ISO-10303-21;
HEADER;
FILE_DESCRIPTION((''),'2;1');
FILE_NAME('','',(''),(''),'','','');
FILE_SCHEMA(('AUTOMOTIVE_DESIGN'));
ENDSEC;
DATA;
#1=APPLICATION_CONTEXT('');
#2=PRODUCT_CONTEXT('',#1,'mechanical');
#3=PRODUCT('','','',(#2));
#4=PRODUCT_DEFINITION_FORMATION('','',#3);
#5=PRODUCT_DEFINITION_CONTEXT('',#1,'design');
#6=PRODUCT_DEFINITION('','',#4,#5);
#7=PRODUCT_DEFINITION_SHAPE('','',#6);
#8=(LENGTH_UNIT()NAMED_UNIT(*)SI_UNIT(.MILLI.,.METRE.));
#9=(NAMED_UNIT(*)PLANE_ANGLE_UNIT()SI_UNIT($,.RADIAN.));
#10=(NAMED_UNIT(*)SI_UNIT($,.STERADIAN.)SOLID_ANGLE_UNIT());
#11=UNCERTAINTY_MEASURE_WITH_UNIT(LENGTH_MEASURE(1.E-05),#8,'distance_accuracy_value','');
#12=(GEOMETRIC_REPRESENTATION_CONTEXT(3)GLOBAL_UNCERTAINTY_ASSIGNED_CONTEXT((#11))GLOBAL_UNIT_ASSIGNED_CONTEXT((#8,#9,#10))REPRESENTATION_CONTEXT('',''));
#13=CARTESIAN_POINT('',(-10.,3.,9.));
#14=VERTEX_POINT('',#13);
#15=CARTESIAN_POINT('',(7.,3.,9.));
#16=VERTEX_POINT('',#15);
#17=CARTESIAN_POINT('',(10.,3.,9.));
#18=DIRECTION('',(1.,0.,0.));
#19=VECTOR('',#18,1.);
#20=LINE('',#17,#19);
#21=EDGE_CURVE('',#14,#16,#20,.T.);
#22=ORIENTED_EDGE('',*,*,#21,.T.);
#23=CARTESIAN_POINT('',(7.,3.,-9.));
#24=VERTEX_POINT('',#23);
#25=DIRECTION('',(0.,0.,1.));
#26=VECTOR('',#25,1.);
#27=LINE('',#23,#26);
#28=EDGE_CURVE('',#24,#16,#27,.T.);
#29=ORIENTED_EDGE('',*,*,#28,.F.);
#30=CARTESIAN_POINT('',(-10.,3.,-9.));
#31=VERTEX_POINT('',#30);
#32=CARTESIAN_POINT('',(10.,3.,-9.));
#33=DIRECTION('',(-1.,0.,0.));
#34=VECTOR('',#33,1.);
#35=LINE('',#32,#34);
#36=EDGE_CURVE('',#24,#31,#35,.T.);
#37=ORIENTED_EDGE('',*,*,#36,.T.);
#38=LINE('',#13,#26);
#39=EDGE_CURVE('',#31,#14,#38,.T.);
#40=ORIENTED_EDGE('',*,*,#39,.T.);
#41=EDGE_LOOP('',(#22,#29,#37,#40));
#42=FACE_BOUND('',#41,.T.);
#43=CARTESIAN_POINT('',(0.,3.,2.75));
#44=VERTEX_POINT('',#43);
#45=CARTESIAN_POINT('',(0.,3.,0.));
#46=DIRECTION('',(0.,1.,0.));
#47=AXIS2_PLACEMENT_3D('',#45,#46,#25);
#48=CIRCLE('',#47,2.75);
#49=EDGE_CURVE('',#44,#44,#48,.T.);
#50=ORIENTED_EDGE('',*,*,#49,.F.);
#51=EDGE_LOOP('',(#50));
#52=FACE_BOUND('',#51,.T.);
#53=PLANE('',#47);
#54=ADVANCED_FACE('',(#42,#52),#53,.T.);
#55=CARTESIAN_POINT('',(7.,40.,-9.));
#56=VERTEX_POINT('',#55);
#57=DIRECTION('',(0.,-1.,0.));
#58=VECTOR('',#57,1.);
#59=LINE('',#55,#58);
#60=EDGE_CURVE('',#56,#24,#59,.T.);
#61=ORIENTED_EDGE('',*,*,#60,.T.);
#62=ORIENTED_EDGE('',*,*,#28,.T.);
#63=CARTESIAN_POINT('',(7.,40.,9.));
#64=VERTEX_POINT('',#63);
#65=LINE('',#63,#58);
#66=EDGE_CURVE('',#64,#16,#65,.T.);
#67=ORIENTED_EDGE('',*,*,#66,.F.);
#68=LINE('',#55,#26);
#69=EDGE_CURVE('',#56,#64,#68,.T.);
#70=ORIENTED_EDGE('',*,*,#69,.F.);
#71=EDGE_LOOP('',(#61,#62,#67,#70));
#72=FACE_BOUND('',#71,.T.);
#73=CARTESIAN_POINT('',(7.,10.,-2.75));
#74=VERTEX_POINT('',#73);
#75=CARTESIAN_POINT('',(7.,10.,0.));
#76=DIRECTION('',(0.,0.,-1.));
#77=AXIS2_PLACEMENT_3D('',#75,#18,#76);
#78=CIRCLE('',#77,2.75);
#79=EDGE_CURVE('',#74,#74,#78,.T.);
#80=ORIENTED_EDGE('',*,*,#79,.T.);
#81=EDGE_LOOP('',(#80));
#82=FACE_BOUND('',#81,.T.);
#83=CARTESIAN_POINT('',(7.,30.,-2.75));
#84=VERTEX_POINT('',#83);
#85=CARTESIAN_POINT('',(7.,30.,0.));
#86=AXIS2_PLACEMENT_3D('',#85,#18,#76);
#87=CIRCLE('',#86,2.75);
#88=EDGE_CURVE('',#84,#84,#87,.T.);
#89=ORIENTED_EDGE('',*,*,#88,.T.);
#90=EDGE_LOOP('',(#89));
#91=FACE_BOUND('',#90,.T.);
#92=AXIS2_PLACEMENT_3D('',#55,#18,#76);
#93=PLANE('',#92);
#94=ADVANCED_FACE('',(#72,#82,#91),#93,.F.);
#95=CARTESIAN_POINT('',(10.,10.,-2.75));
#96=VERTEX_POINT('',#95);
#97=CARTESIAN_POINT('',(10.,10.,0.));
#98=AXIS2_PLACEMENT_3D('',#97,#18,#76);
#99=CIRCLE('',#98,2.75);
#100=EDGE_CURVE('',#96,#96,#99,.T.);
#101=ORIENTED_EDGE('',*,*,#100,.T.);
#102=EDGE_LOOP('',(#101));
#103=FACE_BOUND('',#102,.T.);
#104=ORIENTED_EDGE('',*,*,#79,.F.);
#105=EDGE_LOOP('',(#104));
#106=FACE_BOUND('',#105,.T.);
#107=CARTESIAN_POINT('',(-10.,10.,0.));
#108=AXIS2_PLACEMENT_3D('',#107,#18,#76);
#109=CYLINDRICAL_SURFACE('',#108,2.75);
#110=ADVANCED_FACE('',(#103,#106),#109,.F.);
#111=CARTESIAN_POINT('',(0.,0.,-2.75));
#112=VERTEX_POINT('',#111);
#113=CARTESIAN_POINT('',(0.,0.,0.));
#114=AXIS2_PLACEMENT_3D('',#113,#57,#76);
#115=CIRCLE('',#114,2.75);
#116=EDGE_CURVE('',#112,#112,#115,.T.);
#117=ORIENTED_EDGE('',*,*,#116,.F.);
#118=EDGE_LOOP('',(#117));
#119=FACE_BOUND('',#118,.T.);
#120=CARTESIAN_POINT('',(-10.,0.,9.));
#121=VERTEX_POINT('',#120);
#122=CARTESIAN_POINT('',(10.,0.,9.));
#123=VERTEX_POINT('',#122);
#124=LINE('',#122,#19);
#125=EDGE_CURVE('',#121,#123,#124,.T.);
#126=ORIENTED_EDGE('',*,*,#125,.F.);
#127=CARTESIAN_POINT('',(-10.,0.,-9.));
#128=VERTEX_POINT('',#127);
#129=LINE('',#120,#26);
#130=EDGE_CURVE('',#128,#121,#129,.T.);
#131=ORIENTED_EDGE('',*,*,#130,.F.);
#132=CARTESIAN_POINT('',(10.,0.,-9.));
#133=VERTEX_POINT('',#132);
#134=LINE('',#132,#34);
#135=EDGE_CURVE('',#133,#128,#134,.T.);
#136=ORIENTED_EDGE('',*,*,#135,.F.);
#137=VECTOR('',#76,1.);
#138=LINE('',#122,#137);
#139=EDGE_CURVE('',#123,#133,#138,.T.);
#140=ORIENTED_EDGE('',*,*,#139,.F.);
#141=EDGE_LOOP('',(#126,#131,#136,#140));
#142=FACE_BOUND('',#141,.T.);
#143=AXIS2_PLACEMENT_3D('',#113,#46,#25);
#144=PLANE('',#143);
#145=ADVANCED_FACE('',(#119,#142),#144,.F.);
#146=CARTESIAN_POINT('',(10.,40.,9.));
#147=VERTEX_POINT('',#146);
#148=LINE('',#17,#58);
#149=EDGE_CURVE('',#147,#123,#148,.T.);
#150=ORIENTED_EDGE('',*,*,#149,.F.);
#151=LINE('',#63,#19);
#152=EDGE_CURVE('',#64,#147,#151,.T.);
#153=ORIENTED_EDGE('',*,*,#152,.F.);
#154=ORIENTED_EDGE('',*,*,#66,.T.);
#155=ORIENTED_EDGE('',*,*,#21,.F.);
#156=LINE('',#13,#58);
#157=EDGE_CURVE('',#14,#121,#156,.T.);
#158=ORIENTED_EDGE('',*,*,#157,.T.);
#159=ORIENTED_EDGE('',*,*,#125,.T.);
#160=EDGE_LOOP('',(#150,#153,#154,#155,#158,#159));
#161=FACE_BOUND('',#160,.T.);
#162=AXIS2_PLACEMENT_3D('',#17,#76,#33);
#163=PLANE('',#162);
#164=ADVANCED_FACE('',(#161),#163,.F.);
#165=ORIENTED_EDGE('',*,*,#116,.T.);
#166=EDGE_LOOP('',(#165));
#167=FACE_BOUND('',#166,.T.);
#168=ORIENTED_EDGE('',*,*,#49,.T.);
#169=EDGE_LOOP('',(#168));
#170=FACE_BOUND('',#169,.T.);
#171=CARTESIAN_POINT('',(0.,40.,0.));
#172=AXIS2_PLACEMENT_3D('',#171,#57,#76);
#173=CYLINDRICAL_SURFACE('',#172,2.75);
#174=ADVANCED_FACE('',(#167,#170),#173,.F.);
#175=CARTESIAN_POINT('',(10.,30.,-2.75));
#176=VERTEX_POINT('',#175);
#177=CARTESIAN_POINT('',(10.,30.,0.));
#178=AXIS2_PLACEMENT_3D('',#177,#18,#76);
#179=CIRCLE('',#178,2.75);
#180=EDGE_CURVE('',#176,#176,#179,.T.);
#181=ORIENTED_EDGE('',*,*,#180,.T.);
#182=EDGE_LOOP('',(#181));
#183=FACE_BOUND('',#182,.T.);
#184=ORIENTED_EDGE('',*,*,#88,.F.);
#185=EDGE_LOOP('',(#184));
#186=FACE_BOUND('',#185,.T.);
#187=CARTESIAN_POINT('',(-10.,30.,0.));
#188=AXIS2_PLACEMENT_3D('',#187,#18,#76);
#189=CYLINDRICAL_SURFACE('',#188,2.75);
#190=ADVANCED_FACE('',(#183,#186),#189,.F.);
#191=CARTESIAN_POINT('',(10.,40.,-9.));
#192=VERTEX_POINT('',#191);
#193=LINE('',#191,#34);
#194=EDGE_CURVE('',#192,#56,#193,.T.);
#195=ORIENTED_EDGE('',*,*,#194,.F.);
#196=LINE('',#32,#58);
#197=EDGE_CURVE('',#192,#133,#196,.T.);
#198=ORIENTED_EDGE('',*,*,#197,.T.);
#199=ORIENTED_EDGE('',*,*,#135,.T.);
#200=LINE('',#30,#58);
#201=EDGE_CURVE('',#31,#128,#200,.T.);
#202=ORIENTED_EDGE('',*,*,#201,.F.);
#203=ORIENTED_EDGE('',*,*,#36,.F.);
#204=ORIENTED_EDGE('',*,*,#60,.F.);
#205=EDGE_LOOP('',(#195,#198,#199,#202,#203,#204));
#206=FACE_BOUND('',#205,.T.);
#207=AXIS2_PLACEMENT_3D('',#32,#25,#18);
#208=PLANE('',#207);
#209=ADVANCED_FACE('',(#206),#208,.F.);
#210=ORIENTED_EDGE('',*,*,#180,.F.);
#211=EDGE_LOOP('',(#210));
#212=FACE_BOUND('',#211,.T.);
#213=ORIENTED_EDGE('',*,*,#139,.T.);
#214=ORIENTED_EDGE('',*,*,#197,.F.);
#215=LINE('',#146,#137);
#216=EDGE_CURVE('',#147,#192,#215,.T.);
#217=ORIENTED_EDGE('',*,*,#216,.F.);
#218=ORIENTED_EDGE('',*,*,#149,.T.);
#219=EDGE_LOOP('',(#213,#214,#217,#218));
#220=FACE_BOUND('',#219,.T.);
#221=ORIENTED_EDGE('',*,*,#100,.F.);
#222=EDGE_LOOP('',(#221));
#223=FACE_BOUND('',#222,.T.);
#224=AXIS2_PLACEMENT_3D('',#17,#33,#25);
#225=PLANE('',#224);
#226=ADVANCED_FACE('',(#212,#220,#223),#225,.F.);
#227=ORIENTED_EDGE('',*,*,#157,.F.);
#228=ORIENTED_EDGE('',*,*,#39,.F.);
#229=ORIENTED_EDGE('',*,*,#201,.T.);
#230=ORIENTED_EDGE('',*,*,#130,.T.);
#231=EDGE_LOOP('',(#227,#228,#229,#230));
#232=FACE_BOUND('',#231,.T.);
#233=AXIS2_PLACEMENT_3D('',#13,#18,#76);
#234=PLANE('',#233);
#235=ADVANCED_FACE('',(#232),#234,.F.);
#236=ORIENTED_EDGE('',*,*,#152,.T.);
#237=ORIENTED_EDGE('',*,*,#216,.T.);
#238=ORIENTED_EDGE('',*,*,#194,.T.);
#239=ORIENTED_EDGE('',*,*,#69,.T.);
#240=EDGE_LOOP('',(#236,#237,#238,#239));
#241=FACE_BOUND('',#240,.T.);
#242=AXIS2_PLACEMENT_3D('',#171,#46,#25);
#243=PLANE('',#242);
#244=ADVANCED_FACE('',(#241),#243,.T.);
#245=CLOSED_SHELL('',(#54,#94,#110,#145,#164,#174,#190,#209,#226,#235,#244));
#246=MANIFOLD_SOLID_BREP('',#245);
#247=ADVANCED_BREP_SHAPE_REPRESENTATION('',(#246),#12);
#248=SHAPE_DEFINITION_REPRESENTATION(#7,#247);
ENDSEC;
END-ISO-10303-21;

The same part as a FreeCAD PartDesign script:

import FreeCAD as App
import Part
import Sketcher

V = App.Vector


def add_polygon(sketch, points):
    """Adds a closed chain of lines whose ends are joined by coincident constraints."""
    first, n = sketch.GeometryCount, len(points)
    for a, b in zip(points, points[1:] + points[:1]):
        sketch.addGeometry(Part.LineSegment(App.Vector(*a, 0), App.Vector(*b, 0)), False)
    for i in range(n):
        sketch.addConstraint(Sketcher.Constraint("Coincident", first + i, 2, first + (i + 1) % n, 1))

doc = App.newDocument("Part")
params = doc.addObject("Spreadsheet::Sheet", "Params")
for row, (alias, value) in enumerate([
    ("sketch1_width", "20 mm"),
    ("sketch1_height", "18 mm"),
    ("pad1_length", "3 mm"),
    ("sketch2_width", "3 mm"),
    ("sketch2_height", "18 mm"),
    ("pad2_length", "37 mm"),
    ("sketch3_diameter", "5.5 mm"),
    ("sketch4_diameter", "5.5 mm"),
], start=1):
    params.set(f"A{row}", alias)
    params.set(f"B{row}", "=" + value)
    params.setAlias(f"B{row}", alias)

body = doc.addObject("PartDesign::Body", "Body")

# Sketch on XZ plane
sketch1 = body.newObject("Sketcher::SketchObject", "Sketch")
sketch1.AttachmentSupport = (doc.getObject("XZ_Plane"), [""])
sketch1.MapMode = "FlatFace"
add_polygon(sketch1, [(-10, -9), (-10, 9), (10, 9), (10, -9)])  # lines 0-3
sketch1.addConstraint(Sketcher.Constraint("Vertical", 0))
sketch1.addConstraint(Sketcher.Constraint("Horizontal", 1))
sketch1.addConstraint(Sketcher.Constraint("Vertical", 2))
sketch1.addConstraint(Sketcher.Constraint("Horizontal", 3))
sketch1.addConstraint(Sketcher.Constraint("Symmetric", 0, 2, 2, 2, -1, 1))
sketch1.addConstraint(Sketcher.Constraint("DistanceX", 1, 1, 1, 2, 20.0))
sketch1.addConstraint(Sketcher.Constraint("DistanceY", 0, 1, 0, 2, 18.0))
sketch1.setExpression("Constraints[9]", "Params.sketch1_width")
sketch1.setExpression("Constraints[10]", "Params.sketch1_height")
pad1 = body.newObject("PartDesign::Pad", "Pad")
pad1.Profile = sketch1
pad1.setExpression("Length", "Params.pad1_length")
pad1.Reversed = True

# Sketch on XZ plane
sketch2 = body.newObject("Sketcher::SketchObject", "Sketch001")
sketch2.AttachmentSupport = (doc.getObject("XZ_Plane"), [""])
sketch2.MapMode = "FlatFace"
sketch2.AttachmentOffset = App.Placement(V(0, 0, -3), App.Rotation())
add_polygon(sketch2, [(7, -9), (7, 9), (10, 9), (10, -9)])  # lines 0-3
sketch2.addConstraint(Sketcher.Constraint("Vertical", 0))
sketch2.addConstraint(Sketcher.Constraint("Horizontal", 1))
sketch2.addConstraint(Sketcher.Constraint("Vertical", 2))
sketch2.addConstraint(Sketcher.Constraint("Horizontal", 3))
sketch2.addConstraint(Sketcher.Constraint("DistanceX", 1, 1, 1, 2, 3.0))
sketch2.addConstraint(Sketcher.Constraint("DistanceY", 0, 1, 0, 2, 18.0))
sketch2.addConstraint(Sketcher.Constraint("DistanceX", -1, 1, 0, 2, 7.0))
sketch2.addConstraint(Sketcher.Constraint("DistanceY", -1, 1, 0, 2, 9.0))
sketch2.setExpression("Constraints[8]", "Params.sketch2_width")
sketch2.setExpression("Constraints[9]", "Params.sketch2_height")
pad2 = body.newObject("PartDesign::Pad", "Pad001")
pad2.Profile = sketch2
pad2.setExpression("Length", "Params.pad2_length")
pad2.Reversed = True

# Sketch on XZ plane
sketch3 = body.newObject("Sketcher::SketchObject", "Sketch002")
sketch3.AttachmentSupport = (doc.getObject("XZ_Plane"), [""])
sketch3.MapMode = "FlatFace"
sketch3.addGeometry(Part.Circle(V(0, 0, 0), V(0, 0, 1), 2.8), False)
sketch3.addConstraint(Sketcher.Constraint("Coincident", 0, 3, -1, 1))
sketch3.addConstraint(Sketcher.Constraint("Diameter", 0, 5.5))
sketch3.setExpression("Constraints[1]", "Params.sketch3_diameter")
pocket1 = body.newObject("PartDesign::Pocket", "Pocket")
pocket1.Profile = sketch3
pocket1.Type = "ThroughAll"

# Sketch on YZ plane
sketch4 = body.newObject("Sketcher::SketchObject", "Sketch003")
sketch4.AttachmentSupport = (doc.getObject("YZ_Plane"), [""])
sketch4.MapMode = "FlatFace"
sketch4.AttachmentOffset = App.Placement(V(0, 0, 10), App.Rotation())
sketch4.addGeometry(Part.Circle(V(10, 0, 0), V(0, 0, 1), 2.8), False)
sketch4.addGeometry(Part.Circle(V(30, 0, 0), V(0, 0, 1), 2.8), False)
sketch4.addConstraint(Sketcher.Constraint("Equal", 0, 1))
sketch4.addConstraint(Sketcher.Constraint("PointOnObject", 0, 3, -1))
sketch4.addConstraint(Sketcher.Constraint("PointOnObject", 1, 3, -1))
sketch4.addConstraint(Sketcher.Constraint("Diameter", 0, 5.5))
sketch4.addConstraint(Sketcher.Constraint("DistanceX", -1, 1, 0, 3, 10.0))
sketch4.addConstraint(Sketcher.Constraint("DistanceX", -1, 1, 1, 3, 30.0))
sketch4.setExpression("Constraints[3]", "Params.sketch4_diameter")
pocket2 = body.newObject("PartDesign::Pocket", "Pocket001")
pocket2.Profile = sketch4
pocket2.Type = "ThroughAll"

doc.recompute()
